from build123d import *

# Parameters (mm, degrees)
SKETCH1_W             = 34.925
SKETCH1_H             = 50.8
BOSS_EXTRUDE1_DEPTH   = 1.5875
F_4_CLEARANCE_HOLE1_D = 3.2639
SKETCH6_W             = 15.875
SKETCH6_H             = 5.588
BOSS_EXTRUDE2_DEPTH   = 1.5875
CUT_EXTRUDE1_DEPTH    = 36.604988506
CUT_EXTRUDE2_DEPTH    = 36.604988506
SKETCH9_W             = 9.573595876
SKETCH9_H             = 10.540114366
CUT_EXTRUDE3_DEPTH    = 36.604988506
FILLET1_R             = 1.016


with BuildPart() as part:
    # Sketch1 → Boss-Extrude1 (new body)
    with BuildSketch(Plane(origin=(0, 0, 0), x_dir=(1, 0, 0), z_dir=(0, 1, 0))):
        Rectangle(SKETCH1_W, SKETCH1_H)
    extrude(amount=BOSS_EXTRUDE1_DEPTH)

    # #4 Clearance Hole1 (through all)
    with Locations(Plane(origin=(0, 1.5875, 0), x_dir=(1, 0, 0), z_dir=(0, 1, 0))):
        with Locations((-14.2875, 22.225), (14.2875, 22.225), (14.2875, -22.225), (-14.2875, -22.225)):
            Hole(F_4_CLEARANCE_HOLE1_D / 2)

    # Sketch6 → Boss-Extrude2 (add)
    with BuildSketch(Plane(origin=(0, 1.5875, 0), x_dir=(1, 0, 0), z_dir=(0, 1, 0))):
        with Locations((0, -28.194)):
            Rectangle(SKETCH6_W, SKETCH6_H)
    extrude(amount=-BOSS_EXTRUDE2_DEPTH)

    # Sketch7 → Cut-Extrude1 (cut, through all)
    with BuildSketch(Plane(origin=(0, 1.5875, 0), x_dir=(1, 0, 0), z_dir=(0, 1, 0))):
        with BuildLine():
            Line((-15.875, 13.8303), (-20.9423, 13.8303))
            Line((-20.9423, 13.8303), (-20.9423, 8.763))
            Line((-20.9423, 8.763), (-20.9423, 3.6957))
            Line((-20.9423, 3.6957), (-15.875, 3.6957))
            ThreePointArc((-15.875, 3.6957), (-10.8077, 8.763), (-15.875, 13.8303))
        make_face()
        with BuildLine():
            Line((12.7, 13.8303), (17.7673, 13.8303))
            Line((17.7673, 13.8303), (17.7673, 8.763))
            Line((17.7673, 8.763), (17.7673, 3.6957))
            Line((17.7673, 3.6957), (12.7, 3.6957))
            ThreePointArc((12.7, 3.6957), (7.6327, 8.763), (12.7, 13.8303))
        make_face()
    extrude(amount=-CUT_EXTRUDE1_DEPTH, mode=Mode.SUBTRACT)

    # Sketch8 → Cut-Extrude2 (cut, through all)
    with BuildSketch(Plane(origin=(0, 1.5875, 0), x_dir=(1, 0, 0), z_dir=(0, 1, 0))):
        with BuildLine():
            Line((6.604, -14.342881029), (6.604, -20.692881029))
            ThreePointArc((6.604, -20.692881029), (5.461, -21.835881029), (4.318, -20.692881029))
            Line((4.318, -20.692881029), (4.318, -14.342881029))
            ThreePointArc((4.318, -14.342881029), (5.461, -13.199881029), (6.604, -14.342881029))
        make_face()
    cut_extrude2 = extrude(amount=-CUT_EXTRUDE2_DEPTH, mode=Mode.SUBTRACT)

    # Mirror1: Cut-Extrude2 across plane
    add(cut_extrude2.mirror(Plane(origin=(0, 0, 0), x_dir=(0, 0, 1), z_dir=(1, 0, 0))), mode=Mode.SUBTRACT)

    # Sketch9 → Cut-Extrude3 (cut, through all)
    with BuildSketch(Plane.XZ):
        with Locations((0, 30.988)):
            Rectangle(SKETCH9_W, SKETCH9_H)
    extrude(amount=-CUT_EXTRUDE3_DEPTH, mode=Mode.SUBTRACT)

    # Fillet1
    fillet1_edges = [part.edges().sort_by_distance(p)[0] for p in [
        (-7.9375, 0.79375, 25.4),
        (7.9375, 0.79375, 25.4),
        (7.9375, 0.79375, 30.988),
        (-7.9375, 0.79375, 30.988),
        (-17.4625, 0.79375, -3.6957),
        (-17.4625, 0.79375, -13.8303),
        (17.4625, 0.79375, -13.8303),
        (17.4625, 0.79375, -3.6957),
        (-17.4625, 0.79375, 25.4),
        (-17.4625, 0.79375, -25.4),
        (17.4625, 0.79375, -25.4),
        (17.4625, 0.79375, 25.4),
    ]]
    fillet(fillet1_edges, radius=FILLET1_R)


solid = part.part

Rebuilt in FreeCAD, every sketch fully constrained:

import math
import FreeCAD as App
import Part
import Sketcher
from FreeCAD import Vector
Q = App.Units.Quantity


def edges_at(feature, points):
    """Names of the edges that pass closest to the given points."""
    edges = feature.Shape.Edges
    near = lambda p: min(range(len(edges)), key=lambda i: edges[i].distToShape(Part.Vertex(*p))[0])
    return sorted({f"Edge{near(p) + 1}" for p in points})


def add_polygon(sketch, points):
    """Adds a closed chain of lines whose ends are joined by coincident constraints."""
    first, n = sketch.GeometryCount, len(points)
    for a, b in zip(points, points[1:] + points[:1]):
        sketch.addGeometry(Part.LineSegment(App.Vector(*a, 0), App.Vector(*b, 0)), False)
    for i in range(n):
        sketch.addConstraint(Sketcher.Constraint("Coincident", first + i, 2, first + (i + 1) % n, 1))

doc = App.newDocument("Part")
params = doc.addObject("Spreadsheet::Sheet", "Params")
for row, (alias, value) in enumerate([
    ("sketch1_height", "2 in"),
    ("sketch1_width", "1.375 in"),
    ("pad1_length", "0.0625 in"),
    ("hole_diameter", "0.1285 in"),
    ("sketch3_height", "0.22 in"),
    ("sketch3_width", "0.625 in"),
    ("pad2_length", "0.0625 in"),
    ("sketch5_radius", "0.045 in"),
    ("sketch5_height", "0.25 in"),
    ("fillet_radius", "0.04 in"),
], start=1):
    params.set(f"A{row}", alias)
    params.set(f"B{row}", "=" + value)
    params.setAlias(f"B{row}", alias)

body = doc.addObject("PartDesign::Body", "Body")

sketch1 = body.newObject("Sketcher::SketchObject", "Sketch")
sketch1.AttachmentSupport = (doc.getObject("XZ_Plane"), [""])
sketch1.MapMode = "FlatFace"
add_polygon(sketch1, [(-17, -25), (-17, 25), (17, 25), (17, -25)])
sketch1.addConstraint(Sketcher.Constraint("Vertical", 0))
sketch1.addConstraint(Sketcher.Constraint("Horizontal", 1))
sketch1.addConstraint(Sketcher.Constraint("Vertical", 2))
sketch1.addConstraint(Sketcher.Constraint("Horizontal", 3))
sketch1.addConstraint(Sketcher.Constraint("Symmetric", 0, 2, 2, 2, -1, 1))
sketch1.addConstraint(Sketcher.Constraint("DistanceY", 0, 1, 0, 2, Q("2 in")))
sketch1.addConstraint(Sketcher.Constraint("DistanceX", 1, 1, 1, 2, Q("1.375 in")))
sketch1.setExpression("Constraints[9]", "Params.sketch1_height")
sketch1.setExpression("Constraints[10]", "Params.sketch1_width")
pad1 = body.newObject("PartDesign::Pad", "Pad")
pad1.Profile = sketch1
pad1.setExpression("Length", "Params.pad1_length")
pad1.Reversed = True

sketch2 = body.newObject("Sketcher::SketchObject", "Sketch001")
sketch2.AttachmentSupport = (doc.getObject("XZ_Plane"), [""])
sketch2.MapMode = "FlatFace"
sketch2.AttachmentOffset = App.Placement(Vector(0, 0, -0.0625 * 25.4), App.Rotation())
sketch2.addGeometry(Part.Circle(Vector(-14.3, -22.2, 0), Vector(0, 0, 1), 1.6), False)
sketch2.addGeometry(Part.Circle(Vector(14.3, -22.2, 0), Vector(0, 0, 1), 1.6), False)
sketch2.addGeometry(Part.Circle(Vector(14.3, 22.2, 0), Vector(0, 0, 1), 1.6), False)
sketch2.addGeometry(Part.Circle(Vector(-14.3, 22.2, 0), Vector(0, 0, 1), 1.6), False)
sketch2.addConstraint(Sketcher.Constraint("Equal", 0, 1))
sketch2.addConstraint(Sketcher.Constraint("Equal", 1, 2))
sketch2.addConstraint(Sketcher.Constraint("Equal", 2, 3))
sketch2.addConstraint(Sketcher.Constraint("Symmetric", 0, 3, 2, 3, -1, 1))
sketch2.addConstraint(Sketcher.Constraint("Symmetric", 1, 3, 3, 3, -1, 1))
sketch2.addConstraint(Sketcher.Constraint("Symmetric", 0, 3, 1, 3, -2))
sketch2.addConstraint(Sketcher.Constraint("Diameter", 0, Q("0.1285 in")))
sketch2.addConstraint(Sketcher.Constraint("DistanceY", 1, 3, 2, 3, Q("1.75 in")))
sketch2.addConstraint(Sketcher.Constraint("DistanceX", 0, 3, -1, 1, Q("0.5625 in")))
doc.recompute()
hole = body.newObject("PartDesign::Hole", "Hole")
hole.Profile = sketch2
hole.ThreadType = "None"
hole.setExpression("Diameter", "Params.hole_diameter")
hole.DepthType = "ThroughAll"
hole.Reversed = True

sketch3 = body.newObject("Sketcher::SketchObject", "Sketch002")
sketch3.AttachmentSupport = (doc.getObject("XZ_Plane"), [""])
sketch3.MapMode = "FlatFace"
sketch3.AttachmentOffset = App.Placement(Vector(0, 0, -0.0625 * 25.4), App.Rotation())
add_polygon(sketch3, [(-8, 25), (-8, 31), (8, 31), (8, 25)])
sketch3.addConstraint(Sketcher.Constraint("Vertical", 0))
sketch3.addConstraint(Sketcher.Constraint("Horizontal", 1))
sketch3.addConstraint(Sketcher.Constraint("Vertical", 2))
sketch3.addConstraint(Sketcher.Constraint("Horizontal", 3))
sketch3.addConstraint(Sketcher.Constraint("DistanceY", -1, 1, 2, 2, Q("1 in")))
sketch3.addConstraint(Sketcher.Constraint("DistanceY", 0, 1, 0, 2, Q("0.22 in")))
sketch3.addConstraint(Sketcher.Constraint("DistanceX", 1, 1, 1, 2, Q("0.625 in")))
sketch3.addConstraint(Sketcher.Constraint("DistanceX", 0, 2, -1, 1, Q("0.3125 in")))
sketch3.setExpression("Constraints[9]", "Params.sketch3_height")
sketch3.setExpression("Constraints[10]", "Params.sketch3_width")
pad2 = body.newObject("PartDesign::Pad", "Pad001")
pad2.Profile = sketch3
pad2.setExpression("Length", "Params.pad2_length")

sketch4 = body.newObject("Sketcher::SketchObject", "Sketch003")
sketch4.AttachmentSupport = (doc.getObject("XZ_Plane"), [""])
sketch4.MapMode = "FlatFace"
sketch4.AttachmentOffset = App.Placement(Vector(0, 0, -0.0625 * 25.4), App.Rotation())
sketch4.addGeometry(Part.LineSegment(Vector(-16, -14, 0), Vector(-21, -14, 0)), False)
sketch4.addGeometry(Part.LineSegment(Vector(-21, -14, 0), Vector(-21, -4, 0)), False)
sketch4.addGeometry(Part.LineSegment(Vector(-21, -4, 0), Vector(-16, -4, 0)), False)
sketch4.addGeometry(Part.ArcOfCircle(Part.Circle(Vector(-16, -9, 0), Vector(0, 0, 1), 5), math.radians(-90), math.radians(90)), False)
sketch4.addGeometry(Part.LineSegment(Vector(18, -14, 0), Vector(13, -14, 0)), False)
sketch4.addGeometry(Part.ArcOfCircle(Part.Circle(Vector(13, -9, 0), Vector(0, 0, 1), 5), math.radians(90), math.radians(270)), False)
sketch4.addGeometry(Part.LineSegment(Vector(13, -4, 0), Vector(18, -4, 0)), False)
sketch4.addGeometry(Part.LineSegment(Vector(18, -4, 0), Vector(18, -14, 0)), False)
sketch4.addConstraint(Sketcher.Constraint("Coincident", 0, 2, 1, 1))
sketch4.addConstraint(Sketcher.Constraint("Coincident", 1, 2, 2, 1))
sketch4.addConstraint(Sketcher.Constraint("Tangent", 2, 2, 3, 2))
sketch4.addConstraint(Sketcher.Constraint("Tangent", 3, 1, 0, 1))
sketch4.addConstraint(Sketcher.Constraint("Tangent", 4, 2, 5, 2))
sketch4.addConstraint(Sketcher.Constraint("Tangent", 5, 1, 6, 1))
sketch4.addConstraint(Sketcher.Constraint("Coincident", 6, 2, 7, 1))
sketch4.addConstraint(Sketcher.Constraint("Coincident", 7, 2, 4, 1))
sketch4.addConstraint(Sketcher.Constraint("Horizontal", 0))
sketch4.addConstraint(Sketcher.Constraint("Vertical", 1))
sketch4.addConstraint(Sketcher.Constraint("Horizontal", 2))
sketch4.addConstraint(Sketcher.Constraint("Horizontal", 4))
sketch4.addConstraint(Sketcher.Constraint("Horizontal", 6))
sketch4.addConstraint(Sketcher.Constraint("Vertical", 7))
sketch4.addConstraint(Sketcher.Constraint("Equal", 3, 5))
sketch4.addConstraint(Sketcher.Constraint("Horizontal", 3, 3, 5, 3))
sketch4.addConstraint(Sketcher.Constraint("Equal", 2, 4))
sketch4.addConstraint(Sketcher.Constraint("DistanceX", -1, 1, 5, 3, Q("0.5 in")))
sketch4.addConstraint(Sketcher.Constraint("Radius", 3, Q("0.1995 in")))
sketch4.addConstraint(Sketcher.Constraint("DistanceX", 0, 2, 0, 1, Q("0.1995 in")))
sketch4.addConstraint(Sketcher.Constraint("DistanceX", 3, 3, -1, 1, Q("0.625 in")))
sketch4.addConstraint(Sketcher.Constraint("DistanceY", 3, 3, -1, 1, Q("0.345 in")))
pocket1 = body.newObject("PartDesign::Pocket", "Pocket")
pocket1.Profile = sketch4
pocket1.Type = "ThroughAll"
pocket1.Reversed = True

sketch5 = body.newObject("Sketcher::SketchObject", "Sketch004")
sketch5.AttachmentSupport = (doc.getObject("XZ_Plane"), [""])
sketch5.MapMode = "FlatFace"
sketch5.AttachmentOffset = App.Placement(Vector(0, 0, -0.0625 * 25.4), App.Rotation())
sketch5.addGeometry(Part.LineSegment(Vector(6.6, 20.7, 0), Vector(6.6, 14.3, 0)), False)
sketch5.addGeometry(Part.ArcOfCircle(Part.Circle(Vector(5.5, 14.3, 0), Vector(0, 0, 1), 1.1), math.radians(180), math.radians(360)), False)
sketch5.addGeometry(Part.LineSegment(Vector(4.3, 14.3, 0), Vector(4.3, 20.7, 0)), False)
sketch5.addGeometry(Part.ArcOfCircle(Part.Circle(Vector(5.5, 20.7, 0), Vector(0, 0, 1), 1.1), math.radians(0), math.radians(180)), False)
sketch5.addConstraint(Sketcher.Constraint("Tangent", 0, 2, 1, 2))
sketch5.addConstraint(Sketcher.Constraint("Tangent", 1, 1, 2, 1))
sketch5.addConstraint(Sketcher.Constraint("Tangent", 2, 2, 3, 2))
sketch5.addConstraint(Sketcher.Constraint("Tangent", 3, 1, 0, 1))
sketch5.addConstraint(Sketcher.Constraint("Vertical", 0))
sketch5.addConstraint(Sketcher.Constraint("Vertical", 2))
sketch5.addConstraint(Sketcher.Constraint("Radius", 1, Q("0.045 in")))
sketch5.addConstraint(Sketcher.Constraint("DistanceY", 0, 2, 0, 1, Q("0.25 in")))
sketch5.addConstraint(Sketcher.Constraint("DistanceX", -1, 1, 0, 2, Q("0.26 in")))
sketch5.addConstraint(Sketcher.Constraint("DistanceY", -1, 1, 1, 3, Q("14.342881 mm")))
sketch5.setExpression("Constraints[6]", "Params.sketch5_radius")
sketch5.setExpression("Constraints[7]", "Params.sketch5_height")
pocket2 = body.newObject("PartDesign::Pocket", "Pocket001")
pocket2.Profile = sketch5
pocket2.Type = "ThroughAll"
pocket2.Reversed = True
doc.recompute()

mirrored = body.newObject("PartDesign::Mirrored", "Mirrored")
mirrored.Originals = [pocket2]
mirrored.MirrorPlane = (doc.getObject("YZ_Plane"), [""])
body.Tip = mirrored

sketch6 = body.newObject("Sketcher::SketchObject", "Sketch005")
sketch6.AttachmentSupport = (doc.getObject("XZ_Plane"), [""])
sketch6.MapMode = "FlatFace"
add_polygon(sketch6, [(-5, 36), (-5, 26), (5, 26), (5, 36)])
sketch6.addConstraint(Sketcher.Constraint("Vertical", 0))
sketch6.addConstraint(Sketcher.Constraint("Horizontal", 1))
sketch6.addConstraint(Sketcher.Constraint("Vertical", 2))
sketch6.addConstraint(Sketcher.Constraint("Horizontal", 3))
sketch6.addConstraint(Sketcher.Constraint("DistanceX", 1, 1, 1, 2, Q("9.573596 mm")))
sketch6.addConstraint(Sketcher.Constraint("DistanceY", 0, 2, 0, 1, Q("10.540114 mm")))
sketch6.addConstraint(Sketcher.Constraint("DistanceX", 0, 2, -1, 1, Q("4.786798 mm")))
sketch6.addConstraint(Sketcher.Constraint("DistanceY", -1, 1, 0, 2, Q("25.717943 mm")))
pocket3 = body.newObject("PartDesign::Pocket", "Pocket002")
pocket3.Profile = sketch6
pocket3.Type = "ThroughAll"
doc.recompute()

fillet = body.newObject("PartDesign::Fillet", "Fillet")
fillet.Base = (pocket3, edges_at(pocket3, [
    (-7.938, 0.794, 25.4),
    (7.938, 0.794, 25.4),
    (7.938, 0.794, 30.988),
    (-7.938, 0.794, 30.988),
    (-17.462, 0.794, -3.696),
    (-17.462, 0.794, -13.83),
    (17.462, 0.794, -13.83),
    (17.462, 0.794, -3.696),
    (-17.462, 0.794, 25.4),
    (-17.462, 0.794, -25.4),
    (17.462, 0.794, -25.4),
    (17.462, 0.794, 25.4),
]))
fillet.setExpression("Radius", "Params.fillet_radius")

doc.recompute()
